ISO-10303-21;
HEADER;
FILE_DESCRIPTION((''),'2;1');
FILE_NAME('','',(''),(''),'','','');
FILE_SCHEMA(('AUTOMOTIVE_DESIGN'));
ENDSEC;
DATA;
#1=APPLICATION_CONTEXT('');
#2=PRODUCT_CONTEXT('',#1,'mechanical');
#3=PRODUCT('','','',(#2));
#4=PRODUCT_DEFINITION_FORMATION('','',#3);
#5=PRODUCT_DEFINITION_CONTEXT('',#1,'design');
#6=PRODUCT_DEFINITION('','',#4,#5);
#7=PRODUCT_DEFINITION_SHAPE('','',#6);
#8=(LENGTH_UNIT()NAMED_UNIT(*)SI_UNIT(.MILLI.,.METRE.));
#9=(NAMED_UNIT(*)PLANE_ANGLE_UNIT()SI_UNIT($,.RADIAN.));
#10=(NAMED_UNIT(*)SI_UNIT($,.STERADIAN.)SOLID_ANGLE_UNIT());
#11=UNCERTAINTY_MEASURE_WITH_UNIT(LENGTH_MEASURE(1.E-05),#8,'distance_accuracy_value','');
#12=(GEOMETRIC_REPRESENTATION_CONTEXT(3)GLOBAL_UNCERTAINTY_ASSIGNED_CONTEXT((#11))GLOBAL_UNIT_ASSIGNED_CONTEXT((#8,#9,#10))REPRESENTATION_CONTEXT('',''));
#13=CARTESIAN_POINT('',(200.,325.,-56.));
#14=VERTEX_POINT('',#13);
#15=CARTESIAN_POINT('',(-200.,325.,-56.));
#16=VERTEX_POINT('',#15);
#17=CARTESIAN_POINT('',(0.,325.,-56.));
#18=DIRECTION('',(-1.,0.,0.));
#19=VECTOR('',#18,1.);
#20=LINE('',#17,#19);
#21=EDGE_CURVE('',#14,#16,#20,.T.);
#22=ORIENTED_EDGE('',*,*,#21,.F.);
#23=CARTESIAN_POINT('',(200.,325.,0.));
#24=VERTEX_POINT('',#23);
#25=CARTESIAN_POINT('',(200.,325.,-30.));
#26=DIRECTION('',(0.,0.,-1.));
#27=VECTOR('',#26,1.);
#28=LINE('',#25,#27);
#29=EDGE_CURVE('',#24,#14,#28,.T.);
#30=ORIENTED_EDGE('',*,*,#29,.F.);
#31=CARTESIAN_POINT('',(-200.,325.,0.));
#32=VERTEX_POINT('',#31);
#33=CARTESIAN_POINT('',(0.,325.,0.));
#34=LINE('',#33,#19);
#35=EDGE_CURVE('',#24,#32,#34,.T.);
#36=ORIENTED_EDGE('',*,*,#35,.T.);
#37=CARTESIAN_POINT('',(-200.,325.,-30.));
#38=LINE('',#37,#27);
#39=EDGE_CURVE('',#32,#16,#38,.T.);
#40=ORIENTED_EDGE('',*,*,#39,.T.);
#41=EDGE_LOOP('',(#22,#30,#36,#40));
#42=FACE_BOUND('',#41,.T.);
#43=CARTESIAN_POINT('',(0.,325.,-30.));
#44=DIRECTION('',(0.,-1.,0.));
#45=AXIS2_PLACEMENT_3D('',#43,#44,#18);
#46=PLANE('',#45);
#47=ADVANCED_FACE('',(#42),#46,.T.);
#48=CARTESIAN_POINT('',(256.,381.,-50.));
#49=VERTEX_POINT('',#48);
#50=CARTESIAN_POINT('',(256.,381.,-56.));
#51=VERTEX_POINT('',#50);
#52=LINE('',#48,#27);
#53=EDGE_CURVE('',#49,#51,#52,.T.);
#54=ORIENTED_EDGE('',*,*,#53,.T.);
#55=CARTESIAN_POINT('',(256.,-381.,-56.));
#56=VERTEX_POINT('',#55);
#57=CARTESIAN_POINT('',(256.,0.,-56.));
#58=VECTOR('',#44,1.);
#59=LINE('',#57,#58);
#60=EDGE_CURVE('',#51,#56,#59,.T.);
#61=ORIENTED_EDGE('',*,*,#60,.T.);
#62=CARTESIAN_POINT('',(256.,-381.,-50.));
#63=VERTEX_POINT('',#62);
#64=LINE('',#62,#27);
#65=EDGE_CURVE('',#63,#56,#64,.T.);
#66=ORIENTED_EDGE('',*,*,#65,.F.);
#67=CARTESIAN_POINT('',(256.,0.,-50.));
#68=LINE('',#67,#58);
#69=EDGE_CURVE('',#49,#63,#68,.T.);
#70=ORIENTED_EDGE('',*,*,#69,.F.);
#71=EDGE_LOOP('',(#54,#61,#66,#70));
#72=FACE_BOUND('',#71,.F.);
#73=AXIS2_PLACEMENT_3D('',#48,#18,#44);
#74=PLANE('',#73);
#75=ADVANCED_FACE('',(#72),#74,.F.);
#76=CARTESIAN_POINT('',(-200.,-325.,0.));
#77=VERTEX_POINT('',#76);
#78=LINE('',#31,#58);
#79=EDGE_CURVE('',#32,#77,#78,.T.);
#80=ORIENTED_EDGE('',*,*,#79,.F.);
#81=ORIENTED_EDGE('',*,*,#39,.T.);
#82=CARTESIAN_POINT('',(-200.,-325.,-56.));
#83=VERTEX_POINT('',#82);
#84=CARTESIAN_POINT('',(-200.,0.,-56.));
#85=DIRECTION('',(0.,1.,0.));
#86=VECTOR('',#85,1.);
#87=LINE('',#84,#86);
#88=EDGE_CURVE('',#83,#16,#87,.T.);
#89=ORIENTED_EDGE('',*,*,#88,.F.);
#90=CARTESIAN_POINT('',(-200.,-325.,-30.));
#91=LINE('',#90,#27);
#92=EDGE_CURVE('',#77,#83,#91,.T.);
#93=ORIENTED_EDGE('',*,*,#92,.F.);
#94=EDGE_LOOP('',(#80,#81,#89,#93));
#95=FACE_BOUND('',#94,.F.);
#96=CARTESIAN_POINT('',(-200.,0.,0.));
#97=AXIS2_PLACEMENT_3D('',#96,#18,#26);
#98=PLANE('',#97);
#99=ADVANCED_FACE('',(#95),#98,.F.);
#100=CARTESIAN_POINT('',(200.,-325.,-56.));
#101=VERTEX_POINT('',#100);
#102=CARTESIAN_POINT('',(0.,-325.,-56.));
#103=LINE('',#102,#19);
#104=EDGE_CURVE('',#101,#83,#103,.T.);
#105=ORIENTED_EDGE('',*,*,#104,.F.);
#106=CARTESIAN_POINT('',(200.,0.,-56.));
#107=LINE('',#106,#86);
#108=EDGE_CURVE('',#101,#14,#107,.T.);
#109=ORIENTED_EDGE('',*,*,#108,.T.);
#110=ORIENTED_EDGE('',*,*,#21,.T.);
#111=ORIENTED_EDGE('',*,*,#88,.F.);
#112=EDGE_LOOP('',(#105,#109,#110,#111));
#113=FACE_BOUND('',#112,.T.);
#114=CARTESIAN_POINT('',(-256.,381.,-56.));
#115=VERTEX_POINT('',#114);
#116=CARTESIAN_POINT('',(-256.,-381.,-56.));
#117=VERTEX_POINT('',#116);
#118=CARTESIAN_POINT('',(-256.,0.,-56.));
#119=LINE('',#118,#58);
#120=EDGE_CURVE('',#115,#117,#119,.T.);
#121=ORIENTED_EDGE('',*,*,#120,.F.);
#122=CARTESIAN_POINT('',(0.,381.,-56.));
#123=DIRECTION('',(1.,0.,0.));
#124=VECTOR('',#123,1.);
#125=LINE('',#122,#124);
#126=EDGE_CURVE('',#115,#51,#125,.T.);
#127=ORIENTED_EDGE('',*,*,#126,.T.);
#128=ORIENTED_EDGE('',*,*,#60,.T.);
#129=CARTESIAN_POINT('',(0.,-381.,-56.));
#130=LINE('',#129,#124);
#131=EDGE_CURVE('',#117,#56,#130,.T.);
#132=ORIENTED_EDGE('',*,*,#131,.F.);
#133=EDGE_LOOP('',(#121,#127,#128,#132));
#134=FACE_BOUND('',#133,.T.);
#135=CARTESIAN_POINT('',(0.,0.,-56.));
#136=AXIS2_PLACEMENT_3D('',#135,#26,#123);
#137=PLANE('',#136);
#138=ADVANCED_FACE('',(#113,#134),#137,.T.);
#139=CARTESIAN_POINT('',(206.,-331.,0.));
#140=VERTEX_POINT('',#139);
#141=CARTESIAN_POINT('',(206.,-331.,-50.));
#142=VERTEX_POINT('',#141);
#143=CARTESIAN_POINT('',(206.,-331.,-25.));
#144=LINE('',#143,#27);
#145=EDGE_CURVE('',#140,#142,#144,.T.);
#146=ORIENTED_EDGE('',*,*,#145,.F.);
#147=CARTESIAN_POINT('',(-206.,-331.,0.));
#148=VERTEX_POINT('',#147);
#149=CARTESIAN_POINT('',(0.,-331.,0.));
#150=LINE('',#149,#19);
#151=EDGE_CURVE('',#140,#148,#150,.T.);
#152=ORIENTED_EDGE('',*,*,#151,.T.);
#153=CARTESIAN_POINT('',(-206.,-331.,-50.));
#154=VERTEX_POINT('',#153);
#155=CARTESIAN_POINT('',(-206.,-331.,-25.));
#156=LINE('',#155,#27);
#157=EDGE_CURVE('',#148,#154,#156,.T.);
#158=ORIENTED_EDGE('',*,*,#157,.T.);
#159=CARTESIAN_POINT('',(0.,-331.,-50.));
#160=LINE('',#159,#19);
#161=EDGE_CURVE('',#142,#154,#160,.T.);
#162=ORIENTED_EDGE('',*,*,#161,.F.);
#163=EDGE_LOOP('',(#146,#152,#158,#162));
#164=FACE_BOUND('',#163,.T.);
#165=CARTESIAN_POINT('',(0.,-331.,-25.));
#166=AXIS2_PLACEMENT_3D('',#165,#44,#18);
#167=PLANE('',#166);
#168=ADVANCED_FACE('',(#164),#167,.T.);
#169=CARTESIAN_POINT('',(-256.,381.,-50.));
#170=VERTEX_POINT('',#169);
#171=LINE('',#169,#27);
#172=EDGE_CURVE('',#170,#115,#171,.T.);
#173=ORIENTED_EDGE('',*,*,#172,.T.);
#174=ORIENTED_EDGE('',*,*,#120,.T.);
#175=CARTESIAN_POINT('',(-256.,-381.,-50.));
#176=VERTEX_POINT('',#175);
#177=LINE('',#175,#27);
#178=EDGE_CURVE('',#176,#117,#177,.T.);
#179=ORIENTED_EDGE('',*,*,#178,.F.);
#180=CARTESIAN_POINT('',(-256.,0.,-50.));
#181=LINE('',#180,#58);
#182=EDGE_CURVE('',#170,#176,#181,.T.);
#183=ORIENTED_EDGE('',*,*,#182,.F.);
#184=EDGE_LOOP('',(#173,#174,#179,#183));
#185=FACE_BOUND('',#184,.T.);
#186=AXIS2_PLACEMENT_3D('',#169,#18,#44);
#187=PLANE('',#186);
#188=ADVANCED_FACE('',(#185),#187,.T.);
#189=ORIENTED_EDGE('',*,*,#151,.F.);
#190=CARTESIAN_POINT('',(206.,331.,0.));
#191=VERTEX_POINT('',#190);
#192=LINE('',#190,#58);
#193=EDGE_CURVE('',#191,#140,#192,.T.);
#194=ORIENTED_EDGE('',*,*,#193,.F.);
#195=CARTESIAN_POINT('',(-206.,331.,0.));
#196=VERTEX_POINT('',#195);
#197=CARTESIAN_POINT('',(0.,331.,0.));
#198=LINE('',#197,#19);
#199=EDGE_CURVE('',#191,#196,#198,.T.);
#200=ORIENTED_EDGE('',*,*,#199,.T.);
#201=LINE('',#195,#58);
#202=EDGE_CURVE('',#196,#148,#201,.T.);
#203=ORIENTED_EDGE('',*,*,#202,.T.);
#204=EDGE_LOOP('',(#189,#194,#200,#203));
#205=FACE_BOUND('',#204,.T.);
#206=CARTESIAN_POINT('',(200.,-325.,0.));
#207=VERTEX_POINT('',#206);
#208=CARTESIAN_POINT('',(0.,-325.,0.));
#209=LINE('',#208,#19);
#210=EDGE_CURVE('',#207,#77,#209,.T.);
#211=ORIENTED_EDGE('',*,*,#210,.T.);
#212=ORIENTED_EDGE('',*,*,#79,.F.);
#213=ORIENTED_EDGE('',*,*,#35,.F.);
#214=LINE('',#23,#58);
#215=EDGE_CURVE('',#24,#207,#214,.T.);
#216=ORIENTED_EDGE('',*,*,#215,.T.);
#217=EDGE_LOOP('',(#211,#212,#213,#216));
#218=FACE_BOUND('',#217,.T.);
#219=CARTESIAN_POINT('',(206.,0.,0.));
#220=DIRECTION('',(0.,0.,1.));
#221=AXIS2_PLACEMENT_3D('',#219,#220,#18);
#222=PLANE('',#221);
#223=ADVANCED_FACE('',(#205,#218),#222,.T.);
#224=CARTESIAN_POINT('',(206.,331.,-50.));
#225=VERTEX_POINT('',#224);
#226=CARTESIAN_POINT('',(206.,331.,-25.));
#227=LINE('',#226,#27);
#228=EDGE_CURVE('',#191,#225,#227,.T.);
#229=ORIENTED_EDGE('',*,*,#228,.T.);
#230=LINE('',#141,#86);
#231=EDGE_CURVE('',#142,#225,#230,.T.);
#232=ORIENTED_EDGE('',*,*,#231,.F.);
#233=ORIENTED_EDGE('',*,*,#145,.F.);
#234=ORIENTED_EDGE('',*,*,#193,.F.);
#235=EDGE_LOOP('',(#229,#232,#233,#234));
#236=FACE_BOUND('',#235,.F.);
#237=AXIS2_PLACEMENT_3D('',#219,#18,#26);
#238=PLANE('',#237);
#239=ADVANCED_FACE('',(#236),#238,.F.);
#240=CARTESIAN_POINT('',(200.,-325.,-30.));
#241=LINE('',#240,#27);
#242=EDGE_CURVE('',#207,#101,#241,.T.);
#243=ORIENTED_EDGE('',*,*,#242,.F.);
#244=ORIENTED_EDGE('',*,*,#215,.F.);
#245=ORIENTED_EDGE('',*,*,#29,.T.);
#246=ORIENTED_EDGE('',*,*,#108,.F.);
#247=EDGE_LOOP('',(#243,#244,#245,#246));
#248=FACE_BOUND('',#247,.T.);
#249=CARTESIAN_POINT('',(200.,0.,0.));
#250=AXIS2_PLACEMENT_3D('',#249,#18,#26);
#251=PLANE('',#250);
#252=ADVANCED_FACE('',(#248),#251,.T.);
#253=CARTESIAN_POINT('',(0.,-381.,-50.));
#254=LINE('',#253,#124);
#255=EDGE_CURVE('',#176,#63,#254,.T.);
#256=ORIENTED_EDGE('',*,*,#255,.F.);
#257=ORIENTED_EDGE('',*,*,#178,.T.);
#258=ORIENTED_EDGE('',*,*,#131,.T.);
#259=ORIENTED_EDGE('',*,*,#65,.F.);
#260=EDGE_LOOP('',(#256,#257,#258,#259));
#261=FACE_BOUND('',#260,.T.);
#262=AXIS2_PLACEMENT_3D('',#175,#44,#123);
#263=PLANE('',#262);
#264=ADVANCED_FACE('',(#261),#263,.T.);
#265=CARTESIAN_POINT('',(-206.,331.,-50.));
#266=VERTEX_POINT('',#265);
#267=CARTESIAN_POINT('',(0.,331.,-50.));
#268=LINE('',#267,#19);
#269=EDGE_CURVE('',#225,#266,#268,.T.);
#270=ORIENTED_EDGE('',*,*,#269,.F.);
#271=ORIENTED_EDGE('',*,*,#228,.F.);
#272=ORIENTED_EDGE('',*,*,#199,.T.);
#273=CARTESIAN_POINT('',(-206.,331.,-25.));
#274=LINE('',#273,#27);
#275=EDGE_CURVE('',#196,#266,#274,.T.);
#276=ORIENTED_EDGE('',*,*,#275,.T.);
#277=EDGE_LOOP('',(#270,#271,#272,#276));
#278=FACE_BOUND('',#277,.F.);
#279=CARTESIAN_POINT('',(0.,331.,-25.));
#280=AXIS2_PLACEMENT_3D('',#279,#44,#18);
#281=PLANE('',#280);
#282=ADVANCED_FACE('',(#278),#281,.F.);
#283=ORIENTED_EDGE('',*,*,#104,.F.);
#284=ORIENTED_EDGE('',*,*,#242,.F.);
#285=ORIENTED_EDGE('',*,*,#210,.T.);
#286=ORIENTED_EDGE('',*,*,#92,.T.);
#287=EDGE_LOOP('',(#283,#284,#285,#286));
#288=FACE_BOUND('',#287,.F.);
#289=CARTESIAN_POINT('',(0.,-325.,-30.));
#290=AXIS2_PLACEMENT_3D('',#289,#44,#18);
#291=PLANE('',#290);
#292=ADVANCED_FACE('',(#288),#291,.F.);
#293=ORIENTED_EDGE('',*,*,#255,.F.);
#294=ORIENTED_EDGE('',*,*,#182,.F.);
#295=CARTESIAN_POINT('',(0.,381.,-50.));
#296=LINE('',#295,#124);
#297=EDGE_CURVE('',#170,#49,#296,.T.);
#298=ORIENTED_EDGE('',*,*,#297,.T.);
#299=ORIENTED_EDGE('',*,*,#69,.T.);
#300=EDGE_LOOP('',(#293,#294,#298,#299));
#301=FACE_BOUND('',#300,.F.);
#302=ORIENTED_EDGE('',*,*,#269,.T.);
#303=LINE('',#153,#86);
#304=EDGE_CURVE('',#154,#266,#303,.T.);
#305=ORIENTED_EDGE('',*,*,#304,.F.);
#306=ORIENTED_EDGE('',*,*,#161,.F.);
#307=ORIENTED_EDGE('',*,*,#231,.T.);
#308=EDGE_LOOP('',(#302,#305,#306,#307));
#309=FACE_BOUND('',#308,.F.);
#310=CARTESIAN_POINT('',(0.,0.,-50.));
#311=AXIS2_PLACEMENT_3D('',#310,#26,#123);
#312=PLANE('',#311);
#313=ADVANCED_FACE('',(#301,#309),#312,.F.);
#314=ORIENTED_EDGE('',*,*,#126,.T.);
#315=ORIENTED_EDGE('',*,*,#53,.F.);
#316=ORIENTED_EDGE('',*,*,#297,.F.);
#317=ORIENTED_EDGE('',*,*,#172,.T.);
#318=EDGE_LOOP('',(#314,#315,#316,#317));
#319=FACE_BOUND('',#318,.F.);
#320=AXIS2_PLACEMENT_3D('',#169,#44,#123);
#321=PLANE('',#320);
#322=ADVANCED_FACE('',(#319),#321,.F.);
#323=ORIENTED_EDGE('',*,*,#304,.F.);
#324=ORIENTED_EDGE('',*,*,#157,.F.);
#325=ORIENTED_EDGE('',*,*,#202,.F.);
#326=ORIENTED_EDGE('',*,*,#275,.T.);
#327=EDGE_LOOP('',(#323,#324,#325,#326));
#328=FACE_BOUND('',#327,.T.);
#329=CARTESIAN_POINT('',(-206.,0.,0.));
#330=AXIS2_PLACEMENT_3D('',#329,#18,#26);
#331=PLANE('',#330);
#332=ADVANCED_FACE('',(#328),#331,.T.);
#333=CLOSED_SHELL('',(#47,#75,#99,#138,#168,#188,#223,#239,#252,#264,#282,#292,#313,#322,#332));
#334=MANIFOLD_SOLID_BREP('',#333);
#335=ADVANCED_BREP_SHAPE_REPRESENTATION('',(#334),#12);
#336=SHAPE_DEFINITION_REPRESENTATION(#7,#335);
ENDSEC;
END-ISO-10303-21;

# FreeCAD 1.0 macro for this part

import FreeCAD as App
import Part
import Sketcher
from FreeCAD import Vector

doc = App.newDocument("Part")
body = doc.addObject("PartDesign::Body", "Body")

# Sketch on XZ plane
sketch1 = body.newObject("Sketcher::SketchObject", "Sketch")
sketch1.AttachmentSupport = (doc.getObject("XZ_Plane"), [""])
sketch1.MapMode = "FlatFace"
sketch1.addGeometry(Part.LineSegment(Vector(-200, 60, 0), Vector(-200, 0, 0)), False)
sketch1.addGeometry(Part.LineSegment(Vector(-200, 0, 0), Vector(200, 0, 0)), False)
sketch1.addGeometry(Part.LineSegment(Vector(200, 0, 0), Vector(200, 60, 0)), False)
sketch1.addGeometry(Part.LineSegment(Vector(200, 60, 0), Vector(-200, 60, 0)), False)
sketch1.addConstraint(Sketcher.Constraint("Coincident", 0, 2, 1, 1))
sketch1.addConstraint(Sketcher.Constraint("Coincident", 1, 2, 2, 1))
sketch1.addConstraint(Sketcher.Constraint("Coincident", 2, 2, 3, 1))
sketch1.addConstraint(Sketcher.Constraint("Coincident", 3, 2, 0, 1))
sketch1.addConstraint(Sketcher.Constraint("Vertical", 0))
sketch1.addConstraint(Sketcher.Constraint("Horizontal", 1))
sketch1.addConstraint(Sketcher.Constraint("Vertical", 2))
sketch1.addConstraint(Sketcher.Constraint("Horizontal", 3))
sketch1.addConstraint(Sketcher.Constraint("Symmetric", 0, 2, 1, 2, -1, 1))
sketch1.addConstraint(Sketcher.Constraint("DistanceX", 1, 1, 1, 2, 400.0))
sketch1.addConstraint(Sketcher.Constraint("DistanceY", 0, 2, 0, 1, 60.0))
pad1 = body.newObject("PartDesign::Pad", "Pad")
pad1.Profile = sketch1
pad1.Length = 650
pad1.Midplane = True
body2 = doc.addObject("PartDesign::Body", "Body001")

# Sketch on XZ plane
sketch2 = body2.newObject("Sketcher::SketchObject", "Sketch001")
sketch2.AttachmentSupport = (doc.getObject("XZ_Plane001"), [""])
sketch2.MapMode = "FlatFace"
sketch2.addGeometry(Part.LineSegment(Vector(-206, 50, 0), Vector(-206, 0, 0)), False)
sketch2.addGeometry(Part.LineSegment(Vector(-206, 0, 0), Vector(206, 0, 0)), False)
sketch2.addGeometry(Part.LineSegment(Vector(206, 0, 0), Vector(206, 50, 0)), False)
sketch2.addGeometry(Part.LineSegment(Vector(206, 50, 0), Vector(-206, 50, 0)), False)
sketch2.addConstraint(Sketcher.Constraint("Coincident", 0, 2, 1, 1))
sketch2.addConstraint(Sketcher.Constraint("Coincident", 1, 2, 2, 1))
sketch2.addConstraint(Sketcher.Constraint("Coincident", 2, 2, 3, 1))
sketch2.addConstraint(Sketcher.Constraint("Coincident", 3, 2, 0, 1))
sketch2.addConstraint(Sketcher.Constraint("Vertical", 0))
sketch2.addConstraint(Sketcher.Constraint("Horizontal", 1))
sketch2.addConstraint(Sketcher.Constraint("Vertical", 2))
sketch2.addConstraint(Sketcher.Constraint("Horizontal", 3))
sketch2.addConstraint(Sketcher.Constraint("Symmetric", 0, 2, 1, 2, -1, 1))
sketch2.addConstraint(Sketcher.Constraint("DistanceX", 1, 1, 1, 2, 412.0))
sketch2.addConstraint(Sketcher.Constraint("DistanceY", 0, 2, 0, 1, 50.0))
pad2 = body2.newObject("PartDesign::Pad", "Pad001")
pad2.Profile = sketch2
pad2.Length = 662
pad2.Midplane = True

# Sketch on XY plane
sketch3 = body2.newObject("Sketcher::SketchObject", "Sketch002")
sketch3.AttachmentSupport = (doc.getObject("XY_Plane001"), [""])
sketch3.MapMode = "FlatFace"
sketch3.AttachmentOffset = App.Placement(Vector(0, 0, 50), App.Rotation())
sketch3.addGeometry(Part.LineSegment(Vector(256, -381, 0), Vector(256, 381, 0)), False)
sketch3.addGeometry(Part.LineSegment(Vector(256, 381, 0), Vector(-256, 381, 0)), False)
sketch3.addGeometry(Part.LineSegment(Vector(-256, 381, 0), Vector(-256, -381, 0)), False)
sketch3.addGeometry(Part.LineSegment(Vector(-256, -381, 0), Vector(256, -381, 0)), False)
sketch3.addConstraint(Sketcher.Constraint("Coincident", 0, 2, 1, 1))
sketch3.addConstraint(Sketcher.Constraint("Coincident", 1, 2, 2, 1))
sketch3.addConstraint(Sketcher.Constraint("Coincident", 2, 2, 3, 1))
sketch3.addConstraint(Sketcher.Constraint("Coincident", 3, 2, 0, 1))
sketch3.addConstraint(Sketcher.Constraint("Vertical", 0))
sketch3.addConstraint(Sketcher.Constraint("Horizontal", 1))
sketch3.addConstraint(Sketcher.Constraint("Vertical", 2))
sketch3.addConstraint(Sketcher.Constraint("Horizontal", 3))
sketch3.addConstraint(Sketcher.Constraint("Symmetric", 0, 2, 2, 2, -1, 1))
sketch3.addConstraint(Sketcher.Constraint("DistanceX", 1, 2, 1, 1, 512.0))
sketch3.addConstraint(Sketcher.Constraint("DistanceY", 0, 1, 0, 2, 762.0))
pad3 = body2.newObject("PartDesign::Pad", "Pad002")
pad3.Profile = sketch3
pad3.Length = 6
doc.recompute()

boolean = body2.newObject("PartDesign::Boolean", "Boolean")
boolean.Type = "Cut"
boolean.addObjects([body])
body3 = doc.addObject("PartDesign::Body", "Body002")
doc.recompute()

body2.Placement = App.Placement(Vector(0, 0, 0), App.Rotation(Vector(0, 1, 0), 180))
boolean2 = body3.newObject("PartDesign::Boolean", "Boolean001")
boolean2.Type = "Fuse"
boolean2.addObjects([body2])

doc.recompute()
